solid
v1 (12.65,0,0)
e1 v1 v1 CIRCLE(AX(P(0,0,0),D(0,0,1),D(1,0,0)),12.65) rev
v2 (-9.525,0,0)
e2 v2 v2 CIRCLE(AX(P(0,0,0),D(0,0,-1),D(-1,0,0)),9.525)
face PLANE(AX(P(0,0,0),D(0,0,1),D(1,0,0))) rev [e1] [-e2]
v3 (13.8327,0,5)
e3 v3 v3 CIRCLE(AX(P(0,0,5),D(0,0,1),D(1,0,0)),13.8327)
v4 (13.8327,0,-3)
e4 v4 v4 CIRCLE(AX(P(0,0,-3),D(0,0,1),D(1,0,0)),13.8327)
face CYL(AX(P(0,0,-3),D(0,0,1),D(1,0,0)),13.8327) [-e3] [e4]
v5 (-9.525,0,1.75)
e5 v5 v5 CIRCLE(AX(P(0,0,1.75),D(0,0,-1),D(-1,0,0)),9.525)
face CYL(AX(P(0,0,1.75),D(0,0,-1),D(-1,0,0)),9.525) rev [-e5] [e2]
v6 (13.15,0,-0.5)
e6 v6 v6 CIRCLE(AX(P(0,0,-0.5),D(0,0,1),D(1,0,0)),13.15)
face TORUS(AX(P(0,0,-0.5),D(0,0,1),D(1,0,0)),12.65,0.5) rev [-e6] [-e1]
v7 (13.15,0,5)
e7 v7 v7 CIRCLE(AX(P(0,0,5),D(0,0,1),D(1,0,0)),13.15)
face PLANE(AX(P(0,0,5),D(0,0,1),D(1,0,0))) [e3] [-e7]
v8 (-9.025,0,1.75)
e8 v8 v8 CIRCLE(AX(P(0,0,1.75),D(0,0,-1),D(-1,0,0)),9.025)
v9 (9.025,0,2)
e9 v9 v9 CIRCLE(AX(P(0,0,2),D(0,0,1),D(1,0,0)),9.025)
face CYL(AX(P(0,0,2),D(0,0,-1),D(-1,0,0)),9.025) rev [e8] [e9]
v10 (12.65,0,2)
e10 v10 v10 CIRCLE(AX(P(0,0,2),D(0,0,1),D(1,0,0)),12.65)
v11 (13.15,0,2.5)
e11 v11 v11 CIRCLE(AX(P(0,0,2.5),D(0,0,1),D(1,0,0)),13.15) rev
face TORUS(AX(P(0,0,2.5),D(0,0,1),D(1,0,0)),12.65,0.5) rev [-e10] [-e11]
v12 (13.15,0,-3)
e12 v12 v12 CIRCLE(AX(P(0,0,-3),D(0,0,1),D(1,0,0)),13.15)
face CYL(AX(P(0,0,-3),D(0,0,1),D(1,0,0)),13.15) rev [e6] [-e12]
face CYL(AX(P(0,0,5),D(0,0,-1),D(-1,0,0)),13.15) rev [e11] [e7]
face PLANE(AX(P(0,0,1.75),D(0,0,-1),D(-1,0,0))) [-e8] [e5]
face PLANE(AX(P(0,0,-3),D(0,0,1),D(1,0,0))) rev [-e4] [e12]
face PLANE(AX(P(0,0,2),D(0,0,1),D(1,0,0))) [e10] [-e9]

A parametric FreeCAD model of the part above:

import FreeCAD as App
import Part
import Sketcher

V = App.Vector


def edges_at(feature, points):
    """Names of the edges that pass closest to the given points."""
    edges = feature.Shape.Edges
    near = lambda p: min(range(len(edges)), key=lambda i: edges[i].distToShape(Part.Vertex(*p))[0])
    return sorted({f"Edge{near(p) + 1}" for p in points})

doc = App.newDocument("Part")
params = doc.addObject("Spreadsheet::Sheet", "Params")
for row, (alias, value) in enumerate([
    ("sketch1_diameter", "26.3 mm"),
    ("pad1_length", "3 mm"),
    ("sketch2_diameter", "18.05 mm"),
    ("pad2_length", "2 mm"),
    ("sketch3_diameter", "26.3 mm"),
    ("pad3_length", "3 mm"),
    ("fillet_radius", "0.5 mm"),
    ("sketch4_diameter", "19.05 mm"),
    ("pocket1_length", "1.75 mm"),
], start=1):
    params.set(f"A{row}", alias)
    params.set(f"B{row}", "=" + value)
    params.setAlias(f"B{row}", alias)

body = doc.addObject("PartDesign::Body", "Body")

# Sketch on XY plane
sketch1 = body.newObject("Sketcher::SketchObject", "Sketch")
sketch1.AttachmentSupport = (doc.getObject("XY_Plane"), [""])
sketch1.MapMode = "FlatFace"
sketch1.addGeometry(Part.Circle(V(0, 0, 0), V(0, 0, 1), 14), False)
sketch1.addGeometry(Part.Circle(V(0, 0, 0), V(0, 0, 1), 13), False)
sketch1.addConstraint(Sketcher.Constraint("Coincident", 0, 3, -1, 1))
sketch1.addConstraint(Sketcher.Constraint("Coincident", 1, 3, -1, 1))
sketch1.addConstraint(Sketcher.Constraint("Diameter", 1, 26.3))
sketch1.addConstraint(Sketcher.Constraint("Diameter", 0, 27.6654))
sketch1.setExpression("Constraints[2]", "Params.sketch1_diameter")
pad1 = body.newObject("PartDesign::Pad", "Pad")
pad1.Profile = sketch1
pad1.setExpression("Length", "Params.pad1_length")
pad1.Reversed = True

# Sketch on XY plane
sketch2 = body.newObject("Sketcher::SketchObject", "Sketch001")
sketch2.AttachmentSupport = (doc.getObject("XY_Plane"), [""])
sketch2.MapMode = "FlatFace"
sketch2.AttachmentOffset = App.Placement(V(0, 0, 2), App.Rotation())
sketch2.addGeometry(Part.Circle(V(0, 0, 0), V(0, 0, 1), 14), False)
sketch2.addGeometry(Part.Circle(V(0, 0, 0), V(0, 0, 1), 9), False)
sketch2.addConstraint(Sketcher.Constraint("Coincident", 0, 3, -1, 1))
sketch2.addConstraint(Sketcher.Constraint("Coincident", 1, 3, -1, 1))
sketch2.addConstraint(Sketcher.Constraint("Diameter", 1, 18.05))
sketch2.addConstraint(Sketcher.Constraint("Diameter", 0, 27.6654))
sketch2.setExpression("Constraints[2]", "Params.sketch2_diameter")
pad2 = body.newObject("PartDesign::Pad", "Pad001")
pad2.Profile = sketch2
pad2.setExpression("Length", "Params.pad2_length")
pad2.Reversed = True

# Sketch on XY plane
sketch3 = body.newObject("Sketcher::SketchObject", "Sketch002")
sketch3.AttachmentSupport = (doc.getObject("XY_Plane"), [""])
sketch3.MapMode = "FlatFace"
sketch3.AttachmentOffset = App.Placement(V(0, 0, 5), App.Rotation())
sketch3.addGeometry(Part.Circle(V(0, 0, 0), V(0, 0, 1), 14), False)
sketch3.addGeometry(Part.Circle(V(0, 0, 0), V(0, 0, 1), 13), False)
sketch3.addConstraint(Sketcher.Constraint("Coincident", 0, 3, -1, 1))
sketch3.addConstraint(Sketcher.Constraint("Coincident", 1, 3, -1, 1))
sketch3.addConstraint(Sketcher.Constraint("Diameter", 1, 26.3))
sketch3.addConstraint(Sketcher.Constraint("Diameter", 0, 27.6654))
sketch3.setExpression("Constraints[2]", "Params.sketch3_diameter")
pad3 = body.newObject("PartDesign::Pad", "Pad002")
pad3.Profile = sketch3
pad3.setExpression("Length", "Params.pad3_length")
pad3.Reversed = True
doc.recompute()

fillet = body.newObject("PartDesign::Fillet", "Fillet")
fillet.Base = (pad3, edges_at(pad3, [(-13.15, 0, 0), (-13.15, 0, 2)]))
fillet.setExpression("Radius", "Params.fillet_radius")

# Sketch on XY plane
sketch4 = body.newObject("Sketcher::SketchObject", "Sketch003")
sketch4.AttachmentSupport = (doc.getObject("XY_Plane"), [""])
sketch4.MapMode = "FlatFace"
sketch4.addGeometry(Part.Circle(V(0, 0, 0), V(0, 0, 1), 10), False)
sketch4.addConstraint(Sketcher.Constraint("Coincident", 0, 3, -1, 1))
sketch4.addConstraint(Sketcher.Constraint("Diameter", 0, 19.05))
sketch4.setExpression("Constraints[1]", "Params.sketch4_diameter")
pocket1 = body.newObject("PartDesign::Pocket", "Pocket")
pocket1.Profile = sketch4
pocket1.setExpression("Length", "Params.pocket1_length")
pocket1.Reversed = True

doc.recompute()
